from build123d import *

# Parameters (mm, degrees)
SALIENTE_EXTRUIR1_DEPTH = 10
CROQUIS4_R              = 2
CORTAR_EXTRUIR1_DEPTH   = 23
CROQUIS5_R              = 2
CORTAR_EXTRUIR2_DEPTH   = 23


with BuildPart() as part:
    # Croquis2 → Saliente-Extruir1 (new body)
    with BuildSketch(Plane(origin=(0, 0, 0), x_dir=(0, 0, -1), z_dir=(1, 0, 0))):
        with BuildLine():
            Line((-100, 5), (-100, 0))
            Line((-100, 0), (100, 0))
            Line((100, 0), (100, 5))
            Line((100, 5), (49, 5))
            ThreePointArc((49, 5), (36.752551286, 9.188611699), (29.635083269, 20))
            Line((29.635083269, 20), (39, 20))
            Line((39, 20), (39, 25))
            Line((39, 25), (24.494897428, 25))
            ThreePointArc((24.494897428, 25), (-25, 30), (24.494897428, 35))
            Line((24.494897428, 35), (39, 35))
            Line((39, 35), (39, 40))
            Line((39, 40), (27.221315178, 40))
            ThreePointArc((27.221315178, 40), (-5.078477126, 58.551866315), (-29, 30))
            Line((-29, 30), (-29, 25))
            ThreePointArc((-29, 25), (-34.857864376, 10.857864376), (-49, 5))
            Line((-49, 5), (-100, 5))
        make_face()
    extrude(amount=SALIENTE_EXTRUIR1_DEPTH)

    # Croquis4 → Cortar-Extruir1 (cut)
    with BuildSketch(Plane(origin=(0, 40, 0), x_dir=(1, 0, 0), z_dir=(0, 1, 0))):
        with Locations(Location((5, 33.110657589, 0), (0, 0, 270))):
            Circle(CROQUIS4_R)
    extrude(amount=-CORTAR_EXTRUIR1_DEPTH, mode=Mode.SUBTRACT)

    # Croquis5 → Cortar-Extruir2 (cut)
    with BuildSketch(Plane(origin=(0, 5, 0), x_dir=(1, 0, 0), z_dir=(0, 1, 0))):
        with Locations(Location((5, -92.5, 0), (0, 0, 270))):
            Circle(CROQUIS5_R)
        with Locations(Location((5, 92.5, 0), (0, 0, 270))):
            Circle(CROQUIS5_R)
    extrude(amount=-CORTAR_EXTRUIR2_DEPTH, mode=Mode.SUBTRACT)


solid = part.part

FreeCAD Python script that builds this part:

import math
import FreeCAD as App
import Part
import Sketcher
from FreeCAD import Vector

doc = App.newDocument("Part")
body = doc.addObject("PartDesign::Body", "Body")

sketch1 = doc.addObject("Sketcher::SketchObject", "Sketch")
body.addObject(sketch1)
sketch1.AttachmentSupport = (doc.YZ_Plane, [""])
sketch1.MapMode = "FlatFace"
sketch1.addGeometry([
    Part.LineSegment(Vector(5, 100, 0), Vector(0, 100, 0)),
    Part.LineSegment(Vector(0, 100, 0), Vector(0, -100, 0)),
    Part.LineSegment(Vector(0, -100, 0), Vector(5, -100, 0)),
    Part.LineSegment(Vector(5, -100, 0), Vector(5, -49, 0)),
    Part.ArcOfCircle(Part.Circle(Vector(25, -49, 0), Vector(0, 0, 1), 20), math.radians(104.477512), math.radians(180)),
    Part.LineSegment(Vector(20, -29.635083, 0), Vector(20, -39, 0)),
    Part.LineSegment(Vector(20, -39, 0), Vector(25, -39, 0)),
    Part.LineSegment(Vector(25, -39, 0), Vector(25, -24.494897, 0)),
    Part.ArcOfCircle(Part.Circle(Vector(30, 0, 0), Vector(0, 0, 1), 25), math.radians(-78.463041), math.radians(258.463041)),
    Part.LineSegment(Vector(35, -24.494897, 0), Vector(35, -39, 0)),
    Part.LineSegment(Vector(35, -39, 0), Vector(40, -39, 0)),
    Part.LineSegment(Vector(40, -39, 0), Vector(40, -27.221315, 0)),
    Part.ArcOfCircle(Part.Circle(Vector(30, 0, 0), Vector(0, 0, 1), 29), math.radians(-69.828729), math.radians(90)),
    Part.LineSegment(Vector(30, 29, 0), Vector(25, 29, 0)),
    Part.ArcOfCircle(Part.Circle(Vector(25, 49, 0), Vector(0, 0, 1), 20), math.radians(180), math.radians(270)),
    Part.LineSegment(Vector(5, 49, 0), Vector(5, 100, 0)),
], False)
sketch1.addConstraint([
    Sketcher.Constraint("Coincident", 0, 2, 1, 1),
    Sketcher.Constraint("Coincident", 1, 2, 2, 1),
    Sketcher.Constraint("Coincident", 2, 2, 3, 1),
    Sketcher.Constraint("Tangent", 3, 2, 4, 2),
    Sketcher.Constraint("Coincident", 4, 1, 5, 1),
    Sketcher.Constraint("Coincident", 5, 2, 6, 1),
    Sketcher.Constraint("Coincident", 6, 2, 7, 1),
    Sketcher.Constraint("Coincident", 7, 2, 8, 2),
    Sketcher.Constraint("Coincident", 8, 1, 9, 1),
    Sketcher.Constraint("Coincident", 9, 2, 10, 1),
    Sketcher.Constraint("Coincident", 10, 2, 11, 1),
    Sketcher.Constraint("Coincident", 11, 2, 12, 1),
    Sketcher.Constraint("Tangent", 12, 2, 13, 1),
    Sketcher.Constraint("Tangent", 13, 2, 14, 2),
    Sketcher.Constraint("Tangent", 14, 1, 15, 1),
    Sketcher.Constraint("Coincident", 15, 2, 0, 1),
    Sketcher.Constraint("Horizontal", 0),
    Sketcher.Constraint("Vertical", 1),
    Sketcher.Constraint("Horizontal", 2),
    Sketcher.Constraint("Vertical", 3),
    Sketcher.Constraint("Vertical", 5),
    Sketcher.Constraint("Horizontal", 6),
    Sketcher.Constraint("Vertical", 7),
    Sketcher.Constraint("Vertical", 9),
    Sketcher.Constraint("Horizontal", 10),
    Sketcher.Constraint("Vertical", 11),
    Sketcher.Constraint("Horizontal", 13),
    Sketcher.Constraint("Vertical", 15),
    Sketcher.Constraint("Coincident", 12, 3, 8, 3),
    Sketcher.Constraint("Equal", 4, 14),
    Sketcher.Constraint("Symmetric", 0, 2, 1, 2, -1, 1),
    Sketcher.Constraint("Symmetric", 4, 3, 14, 3, -1),
    Sketcher.Constraint("PointOnObject", 8, 3, -1),
    Sketcher.Constraint("Horizontal", 7, 2, 8, 1),
    Sketcher.Constraint("Horizontal", 6, 2, 9, 2),
    Sketcher.Constraint("Vertical", 14, 3, 6, 2),
    Sketcher.Constraint("Equal", 2, 6),
    Sketcher.Constraint("Equal", 6, 10),
    Sketcher.Constraint("Equal", 10, 13),
    Sketcher.Constraint("Radius", 4, 20.0),
    Sketcher.Constraint("Radius", 8, 25.0),
    Sketcher.Constraint("Radius", 12, 29.0),
    Sketcher.Constraint("DistanceX", 0, 2, 0, 1, 5.0),
    Sketcher.Constraint("DistanceY", 1, 2, 1, 1, 200.0),
    Sketcher.Constraint("DistanceY", 5, 2, -1, 1, 39.0),
])
pad1 = doc.addObject("PartDesign::Pad", "Pad")
body.addObject(pad1)
pad1.Profile = sketch1
pad1.Length = 10

sketch2 = doc.addObject("Sketcher::SketchObject", "Sketch001")
body.addObject(sketch2)
sketch2.AttachmentSupport = (doc.XZ_Plane, [""])
sketch2.MapMode = "FlatFace"
sketch2.AttachmentOffset = App.Placement(Vector(0, 0, -40), App.Rotation())
sketch2.addGeometry(Part.Circle(Vector(5, -33.110658, 0), Vector(0, 0, 1), 2), False)
sketch2.addConstraint([
    Sketcher.Constraint("Diameter", 0, 4.0),
    Sketcher.Constraint("DistanceX", -1, 1, 0, 3, 5.0),
    Sketcher.Constraint("DistanceY", 0, 3, -1, 1, 33.110658),
])
pocket1 = doc.addObject("PartDesign::Pocket", "Pocket")
body.addObject(pocket1)
pocket1.Profile = sketch2
pocket1.Length = 23
pocket1.Reversed = True

sketch3 = doc.addObject("Sketcher::SketchObject", "Sketch002")
body.addObject(sketch3)
sketch3.AttachmentSupport = (doc.XZ_Plane, [""])
sketch3.MapMode = "FlatFace"
sketch3.AttachmentOffset = App.Placement(Vector(0, 0, -5), App.Rotation())
sketch3.addGeometry([
    Part.Circle(Vector(5, 92.5, 0), Vector(0, 0, 1), 2),
    Part.Circle(Vector(5, -92.5, 0), Vector(0, 0, 1), 2),
], False)
sketch3.addConstraint([
    Sketcher.Constraint("Equal", 0, 1),
    Sketcher.Constraint("Symmetric", 0, 3, 1, 3, -1),
    Sketcher.Constraint("Diameter", 0, 4.0),
    Sketcher.Constraint("DistanceX", -1, 1, 0, 3, 5.0),
    Sketcher.Constraint("DistanceY", 1, 3, 0, 3, 185.0),
])
pocket2 = doc.addObject("PartDesign::Pocket", "Pocket001")
body.addObject(pocket2)
pocket2.Profile = sketch3
pocket2.Length = 23
pocket2.Reversed = True

doc.recompute()
